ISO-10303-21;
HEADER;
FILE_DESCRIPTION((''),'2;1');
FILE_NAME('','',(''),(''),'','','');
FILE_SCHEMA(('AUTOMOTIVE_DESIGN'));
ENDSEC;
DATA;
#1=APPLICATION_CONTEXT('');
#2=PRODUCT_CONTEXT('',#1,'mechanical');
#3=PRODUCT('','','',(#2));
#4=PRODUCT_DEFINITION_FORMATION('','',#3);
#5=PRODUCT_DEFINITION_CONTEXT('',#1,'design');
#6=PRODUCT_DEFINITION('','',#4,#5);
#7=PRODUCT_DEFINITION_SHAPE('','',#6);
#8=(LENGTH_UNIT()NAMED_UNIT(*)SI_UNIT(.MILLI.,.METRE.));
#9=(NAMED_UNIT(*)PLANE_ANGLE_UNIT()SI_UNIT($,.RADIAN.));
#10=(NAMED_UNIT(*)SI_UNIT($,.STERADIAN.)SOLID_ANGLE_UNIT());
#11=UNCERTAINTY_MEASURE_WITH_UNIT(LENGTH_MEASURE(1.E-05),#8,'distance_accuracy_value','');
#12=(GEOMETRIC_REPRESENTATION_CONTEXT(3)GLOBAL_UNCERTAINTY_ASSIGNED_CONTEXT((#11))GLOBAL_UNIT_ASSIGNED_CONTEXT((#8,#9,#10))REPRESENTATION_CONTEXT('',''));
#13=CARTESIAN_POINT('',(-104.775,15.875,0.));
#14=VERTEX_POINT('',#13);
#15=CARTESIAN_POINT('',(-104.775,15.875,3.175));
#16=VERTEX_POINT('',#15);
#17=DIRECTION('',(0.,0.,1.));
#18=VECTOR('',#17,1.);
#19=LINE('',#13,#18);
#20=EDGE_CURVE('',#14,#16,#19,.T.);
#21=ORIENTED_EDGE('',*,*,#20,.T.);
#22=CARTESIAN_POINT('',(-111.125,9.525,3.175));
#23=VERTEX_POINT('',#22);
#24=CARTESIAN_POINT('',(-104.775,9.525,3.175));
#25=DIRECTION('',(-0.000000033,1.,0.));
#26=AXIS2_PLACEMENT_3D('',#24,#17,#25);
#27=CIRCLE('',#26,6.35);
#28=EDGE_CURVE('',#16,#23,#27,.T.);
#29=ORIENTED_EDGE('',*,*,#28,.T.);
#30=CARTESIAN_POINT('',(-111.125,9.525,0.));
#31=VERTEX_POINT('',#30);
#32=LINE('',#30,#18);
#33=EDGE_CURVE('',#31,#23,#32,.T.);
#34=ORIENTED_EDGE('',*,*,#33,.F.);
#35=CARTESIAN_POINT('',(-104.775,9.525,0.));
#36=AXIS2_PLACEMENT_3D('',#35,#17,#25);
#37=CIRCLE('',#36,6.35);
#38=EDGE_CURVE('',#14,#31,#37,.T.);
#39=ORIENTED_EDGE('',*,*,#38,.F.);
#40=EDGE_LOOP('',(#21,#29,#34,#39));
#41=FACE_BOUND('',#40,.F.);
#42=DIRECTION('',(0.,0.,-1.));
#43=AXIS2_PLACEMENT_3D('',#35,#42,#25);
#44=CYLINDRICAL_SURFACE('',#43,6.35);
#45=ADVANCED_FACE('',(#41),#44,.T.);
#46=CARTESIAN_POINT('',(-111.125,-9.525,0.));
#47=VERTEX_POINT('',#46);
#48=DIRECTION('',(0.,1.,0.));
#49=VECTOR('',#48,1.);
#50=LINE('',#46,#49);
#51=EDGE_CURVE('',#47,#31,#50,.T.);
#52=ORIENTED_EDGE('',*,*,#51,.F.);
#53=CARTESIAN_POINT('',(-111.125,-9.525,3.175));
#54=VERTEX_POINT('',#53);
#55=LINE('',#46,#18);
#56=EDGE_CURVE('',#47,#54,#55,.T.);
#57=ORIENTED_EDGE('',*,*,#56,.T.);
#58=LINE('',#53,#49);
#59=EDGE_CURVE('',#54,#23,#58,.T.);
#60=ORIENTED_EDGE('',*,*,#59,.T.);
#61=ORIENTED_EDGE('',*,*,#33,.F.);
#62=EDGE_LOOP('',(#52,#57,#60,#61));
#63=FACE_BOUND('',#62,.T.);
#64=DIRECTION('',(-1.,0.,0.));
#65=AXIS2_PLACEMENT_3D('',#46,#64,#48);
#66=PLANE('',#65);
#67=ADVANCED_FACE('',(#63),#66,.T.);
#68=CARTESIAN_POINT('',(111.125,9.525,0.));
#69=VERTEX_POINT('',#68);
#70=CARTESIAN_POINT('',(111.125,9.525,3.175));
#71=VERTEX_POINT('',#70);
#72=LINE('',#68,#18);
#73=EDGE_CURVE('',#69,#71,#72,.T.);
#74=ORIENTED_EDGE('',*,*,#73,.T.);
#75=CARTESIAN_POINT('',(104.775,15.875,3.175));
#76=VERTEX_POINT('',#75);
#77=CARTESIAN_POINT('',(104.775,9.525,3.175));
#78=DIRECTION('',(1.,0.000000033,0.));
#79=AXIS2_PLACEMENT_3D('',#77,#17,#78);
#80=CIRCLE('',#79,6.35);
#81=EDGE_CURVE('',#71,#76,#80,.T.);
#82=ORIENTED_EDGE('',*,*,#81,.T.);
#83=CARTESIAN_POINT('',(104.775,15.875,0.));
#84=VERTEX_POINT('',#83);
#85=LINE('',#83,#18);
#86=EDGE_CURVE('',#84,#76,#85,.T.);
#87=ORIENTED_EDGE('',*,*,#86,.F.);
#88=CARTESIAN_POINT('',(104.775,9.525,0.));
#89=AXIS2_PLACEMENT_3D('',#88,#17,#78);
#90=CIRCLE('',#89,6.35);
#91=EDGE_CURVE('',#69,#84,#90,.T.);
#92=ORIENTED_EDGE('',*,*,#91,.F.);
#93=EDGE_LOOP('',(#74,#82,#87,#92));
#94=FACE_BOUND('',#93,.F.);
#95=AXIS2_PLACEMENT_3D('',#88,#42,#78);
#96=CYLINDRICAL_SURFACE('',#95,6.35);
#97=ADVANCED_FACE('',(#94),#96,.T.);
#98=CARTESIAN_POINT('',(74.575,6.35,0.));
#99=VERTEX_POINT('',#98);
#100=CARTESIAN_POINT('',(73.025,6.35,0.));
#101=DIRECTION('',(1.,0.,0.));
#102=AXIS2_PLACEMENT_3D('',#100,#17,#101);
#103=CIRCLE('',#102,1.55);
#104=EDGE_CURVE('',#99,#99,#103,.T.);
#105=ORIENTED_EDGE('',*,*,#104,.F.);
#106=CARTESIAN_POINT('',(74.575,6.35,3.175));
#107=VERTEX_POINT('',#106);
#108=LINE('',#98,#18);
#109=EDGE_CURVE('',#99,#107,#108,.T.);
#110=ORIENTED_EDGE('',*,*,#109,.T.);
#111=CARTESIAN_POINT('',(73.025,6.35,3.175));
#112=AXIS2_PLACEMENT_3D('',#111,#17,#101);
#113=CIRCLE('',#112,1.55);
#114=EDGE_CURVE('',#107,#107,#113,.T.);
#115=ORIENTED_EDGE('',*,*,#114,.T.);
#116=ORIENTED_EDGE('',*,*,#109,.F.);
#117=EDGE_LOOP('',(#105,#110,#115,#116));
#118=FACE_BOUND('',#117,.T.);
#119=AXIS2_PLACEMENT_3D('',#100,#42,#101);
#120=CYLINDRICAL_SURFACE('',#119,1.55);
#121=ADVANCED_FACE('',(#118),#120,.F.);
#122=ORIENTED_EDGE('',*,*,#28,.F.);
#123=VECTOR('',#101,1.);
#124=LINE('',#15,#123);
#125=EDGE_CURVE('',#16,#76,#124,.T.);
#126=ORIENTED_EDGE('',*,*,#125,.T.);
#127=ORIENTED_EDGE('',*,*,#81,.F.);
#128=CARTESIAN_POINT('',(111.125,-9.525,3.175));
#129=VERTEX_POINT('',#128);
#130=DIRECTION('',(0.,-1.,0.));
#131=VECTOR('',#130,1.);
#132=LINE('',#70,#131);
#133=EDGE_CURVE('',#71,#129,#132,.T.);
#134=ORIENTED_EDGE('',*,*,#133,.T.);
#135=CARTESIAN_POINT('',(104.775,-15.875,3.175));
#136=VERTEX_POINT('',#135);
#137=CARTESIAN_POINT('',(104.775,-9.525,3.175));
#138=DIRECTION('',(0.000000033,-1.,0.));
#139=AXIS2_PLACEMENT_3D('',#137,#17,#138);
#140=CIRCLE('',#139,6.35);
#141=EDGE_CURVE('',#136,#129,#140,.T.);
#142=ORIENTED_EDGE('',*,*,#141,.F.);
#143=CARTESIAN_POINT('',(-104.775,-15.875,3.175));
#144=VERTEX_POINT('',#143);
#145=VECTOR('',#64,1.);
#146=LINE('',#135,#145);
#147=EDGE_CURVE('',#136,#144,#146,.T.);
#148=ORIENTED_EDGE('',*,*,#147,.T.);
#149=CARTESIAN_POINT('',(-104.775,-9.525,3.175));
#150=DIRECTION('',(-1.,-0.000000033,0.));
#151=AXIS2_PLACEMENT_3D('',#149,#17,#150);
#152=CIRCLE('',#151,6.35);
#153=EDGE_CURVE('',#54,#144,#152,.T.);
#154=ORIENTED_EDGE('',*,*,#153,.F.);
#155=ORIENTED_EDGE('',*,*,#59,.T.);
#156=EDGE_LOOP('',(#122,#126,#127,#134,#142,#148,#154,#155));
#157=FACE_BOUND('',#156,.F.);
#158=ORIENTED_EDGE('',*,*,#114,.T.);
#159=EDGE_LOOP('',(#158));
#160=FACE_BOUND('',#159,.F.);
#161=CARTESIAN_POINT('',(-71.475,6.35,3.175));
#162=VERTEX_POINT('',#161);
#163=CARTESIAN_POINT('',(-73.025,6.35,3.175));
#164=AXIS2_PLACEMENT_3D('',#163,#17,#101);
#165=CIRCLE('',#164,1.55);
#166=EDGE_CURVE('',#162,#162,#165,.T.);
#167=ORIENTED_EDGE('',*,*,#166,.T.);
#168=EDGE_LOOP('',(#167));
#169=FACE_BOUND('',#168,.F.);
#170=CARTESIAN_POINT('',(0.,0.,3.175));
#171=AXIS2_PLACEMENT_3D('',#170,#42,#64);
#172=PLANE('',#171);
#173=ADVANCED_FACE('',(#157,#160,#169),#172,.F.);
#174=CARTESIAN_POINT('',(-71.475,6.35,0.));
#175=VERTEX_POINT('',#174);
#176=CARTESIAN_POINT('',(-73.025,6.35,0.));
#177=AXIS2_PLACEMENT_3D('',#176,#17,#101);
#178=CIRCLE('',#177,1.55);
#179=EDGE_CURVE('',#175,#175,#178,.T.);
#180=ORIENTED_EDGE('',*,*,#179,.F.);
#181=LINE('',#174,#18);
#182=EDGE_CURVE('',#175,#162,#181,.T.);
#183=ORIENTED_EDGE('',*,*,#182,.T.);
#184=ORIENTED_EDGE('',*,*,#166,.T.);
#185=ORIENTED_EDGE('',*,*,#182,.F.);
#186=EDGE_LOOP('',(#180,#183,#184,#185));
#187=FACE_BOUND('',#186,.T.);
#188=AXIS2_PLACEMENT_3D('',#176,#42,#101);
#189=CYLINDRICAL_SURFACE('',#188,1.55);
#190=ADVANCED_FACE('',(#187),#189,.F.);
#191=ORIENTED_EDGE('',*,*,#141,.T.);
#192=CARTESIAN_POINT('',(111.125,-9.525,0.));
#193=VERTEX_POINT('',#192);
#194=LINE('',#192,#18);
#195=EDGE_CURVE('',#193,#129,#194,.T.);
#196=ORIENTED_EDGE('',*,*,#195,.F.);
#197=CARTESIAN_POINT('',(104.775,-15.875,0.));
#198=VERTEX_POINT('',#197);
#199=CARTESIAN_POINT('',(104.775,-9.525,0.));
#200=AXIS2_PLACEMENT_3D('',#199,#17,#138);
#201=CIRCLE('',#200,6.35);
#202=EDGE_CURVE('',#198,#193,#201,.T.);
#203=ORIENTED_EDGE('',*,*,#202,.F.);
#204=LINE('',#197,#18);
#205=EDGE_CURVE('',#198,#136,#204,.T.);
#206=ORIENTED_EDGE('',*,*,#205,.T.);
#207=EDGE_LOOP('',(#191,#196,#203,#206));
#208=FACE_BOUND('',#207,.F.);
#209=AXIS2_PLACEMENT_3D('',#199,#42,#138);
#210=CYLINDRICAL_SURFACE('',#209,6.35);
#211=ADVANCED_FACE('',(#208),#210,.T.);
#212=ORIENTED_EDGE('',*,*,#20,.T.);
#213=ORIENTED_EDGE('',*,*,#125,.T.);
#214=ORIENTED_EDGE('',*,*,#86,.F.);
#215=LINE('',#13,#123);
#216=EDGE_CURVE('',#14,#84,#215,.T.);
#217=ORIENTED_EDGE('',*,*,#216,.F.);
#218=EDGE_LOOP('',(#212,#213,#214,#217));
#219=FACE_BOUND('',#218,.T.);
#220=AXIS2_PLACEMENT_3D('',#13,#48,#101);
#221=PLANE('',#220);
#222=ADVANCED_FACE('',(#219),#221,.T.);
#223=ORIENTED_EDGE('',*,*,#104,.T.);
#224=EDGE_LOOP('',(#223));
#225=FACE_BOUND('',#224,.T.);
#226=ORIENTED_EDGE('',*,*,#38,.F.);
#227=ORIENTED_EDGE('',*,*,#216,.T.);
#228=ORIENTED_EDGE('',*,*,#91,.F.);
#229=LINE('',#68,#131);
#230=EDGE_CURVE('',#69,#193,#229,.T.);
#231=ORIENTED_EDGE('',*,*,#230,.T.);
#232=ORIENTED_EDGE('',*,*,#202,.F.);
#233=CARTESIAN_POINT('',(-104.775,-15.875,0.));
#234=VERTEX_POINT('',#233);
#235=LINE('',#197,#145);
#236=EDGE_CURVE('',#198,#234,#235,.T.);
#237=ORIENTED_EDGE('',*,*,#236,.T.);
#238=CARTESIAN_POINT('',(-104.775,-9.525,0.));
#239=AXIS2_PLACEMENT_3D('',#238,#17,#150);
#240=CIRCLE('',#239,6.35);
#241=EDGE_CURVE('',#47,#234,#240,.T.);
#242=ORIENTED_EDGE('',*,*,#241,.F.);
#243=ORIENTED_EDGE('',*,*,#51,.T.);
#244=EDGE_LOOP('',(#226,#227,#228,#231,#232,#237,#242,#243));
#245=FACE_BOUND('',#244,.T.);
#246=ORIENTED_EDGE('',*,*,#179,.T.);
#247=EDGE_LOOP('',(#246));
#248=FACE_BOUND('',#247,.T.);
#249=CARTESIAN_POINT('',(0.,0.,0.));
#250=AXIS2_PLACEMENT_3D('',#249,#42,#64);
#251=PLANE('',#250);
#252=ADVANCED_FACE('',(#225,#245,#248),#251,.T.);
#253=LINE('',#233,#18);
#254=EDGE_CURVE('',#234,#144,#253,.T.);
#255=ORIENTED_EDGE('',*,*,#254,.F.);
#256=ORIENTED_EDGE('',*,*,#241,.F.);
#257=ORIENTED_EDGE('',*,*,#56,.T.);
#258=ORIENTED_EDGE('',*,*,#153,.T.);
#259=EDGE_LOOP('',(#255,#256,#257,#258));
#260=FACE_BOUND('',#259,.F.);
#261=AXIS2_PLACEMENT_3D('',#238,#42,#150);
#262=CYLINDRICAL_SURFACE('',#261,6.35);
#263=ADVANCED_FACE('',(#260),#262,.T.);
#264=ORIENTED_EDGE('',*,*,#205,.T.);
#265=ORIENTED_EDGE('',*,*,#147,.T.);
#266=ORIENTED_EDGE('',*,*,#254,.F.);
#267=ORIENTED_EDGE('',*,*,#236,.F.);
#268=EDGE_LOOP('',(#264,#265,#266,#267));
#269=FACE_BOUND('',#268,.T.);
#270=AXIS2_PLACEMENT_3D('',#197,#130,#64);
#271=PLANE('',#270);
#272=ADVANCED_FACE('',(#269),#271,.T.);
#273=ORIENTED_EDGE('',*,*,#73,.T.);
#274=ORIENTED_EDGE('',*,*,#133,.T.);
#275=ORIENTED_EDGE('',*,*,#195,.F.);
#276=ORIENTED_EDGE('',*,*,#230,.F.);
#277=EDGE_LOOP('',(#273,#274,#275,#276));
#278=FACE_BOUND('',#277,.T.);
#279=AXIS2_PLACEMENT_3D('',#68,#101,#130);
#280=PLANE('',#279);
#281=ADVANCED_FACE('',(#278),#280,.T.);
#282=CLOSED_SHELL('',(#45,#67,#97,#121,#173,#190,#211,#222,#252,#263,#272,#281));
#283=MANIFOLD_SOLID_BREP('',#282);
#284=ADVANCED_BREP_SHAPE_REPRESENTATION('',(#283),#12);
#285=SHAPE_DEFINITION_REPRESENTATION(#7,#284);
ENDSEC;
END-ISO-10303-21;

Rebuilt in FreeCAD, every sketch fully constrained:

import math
import FreeCAD as App
import Part
import Sketcher

V = App.Vector
Q = App.Units.Quantity

doc = App.newDocument("Part")
body = doc.addObject("PartDesign::Body", "Body")

# Sketch on XY plane
sketch1 = body.newObject("Sketcher::SketchObject", "Sketch")
sketch1.AttachmentSupport = (doc.getObject("XY_Plane"), [""])
sketch1.MapMode = "FlatFace"
sketch1.addGeometry(Part.LineSegment(V(104.8, 15.9, 0), V(-104.8, 15.9, 0)), False)
sketch1.addGeometry(Part.ArcOfCircle(Part.Circle(V(-104.8, 9.5, 0), V(0, 0, 1), 6.4), math.radians(90), math.radians(180)), False)
sketch1.addGeometry(Part.LineSegment(V(-111.1, 9.5, 0), V(-111.1, -9.5, 0)), False)
sketch1.addGeometry(Part.ArcOfCircle(Part.Circle(V(-104.8, -9.5, 0), V(0, 0, 1), 6.4), math.radians(-180), math.radians(-90)), False)
sketch1.addGeometry(Part.LineSegment(V(-104.8, -15.9, 0), V(104.8, -15.9, 0)), False)
sketch1.addGeometry(Part.ArcOfCircle(Part.Circle(V(104.8, -9.5, 0), V(0, 0, 1), 6.4), math.radians(-90), math.radians(0)), False)
sketch1.addGeometry(Part.LineSegment(V(111.1, -9.5, 0), V(111.1, 9.5, 0)), False)
sketch1.addGeometry(Part.ArcOfCircle(Part.Circle(V(104.8, 9.5, 0), V(0, 0, 1), 6.4), math.radians(0), math.radians(90)), False)
sketch1.addGeometry(Part.Circle(V(73, 6.3, 0), V(0, 0, 1), 1.6), False)
sketch1.addGeometry(Part.Circle(V(-73, 6.3, 0), V(0, 0, 1), 1.6), False)
sketch1.addConstraint(Sketcher.Constraint("Tangent", 0, 2, 1, 1))
sketch1.addConstraint(Sketcher.Constraint("Tangent", 1, 2, 2, 1))
sketch1.addConstraint(Sketcher.Constraint("Tangent", 2, 2, 3, 1))
sketch1.addConstraint(Sketcher.Constraint("Tangent", 3, 2, 4, 1))
sketch1.addConstraint(Sketcher.Constraint("Tangent", 4, 2, 5, 1))
sketch1.addConstraint(Sketcher.Constraint("Tangent", 5, 2, 6, 1))
sketch1.addConstraint(Sketcher.Constraint("Tangent", 6, 2, 7, 1))
sketch1.addConstraint(Sketcher.Constraint("Tangent", 7, 2, 0, 1))
sketch1.addConstraint(Sketcher.Constraint("Horizontal", 0))
sketch1.addConstraint(Sketcher.Constraint("Vertical", 2))
sketch1.addConstraint(Sketcher.Constraint("Horizontal", 4))
sketch1.addConstraint(Sketcher.Constraint("Vertical", 6))
sketch1.addConstraint(Sketcher.Constraint("Equal", 1, 3))
sketch1.addConstraint(Sketcher.Constraint("Equal", 3, 5))
sketch1.addConstraint(Sketcher.Constraint("Equal", 5, 7))
sketch1.addConstraint(Sketcher.Constraint("Equal", 8, 9))
sketch1.addConstraint(Sketcher.Constraint("Symmetric", 1, 3, 5, 3, -1, 1))
sketch1.addConstraint(Sketcher.Constraint("Symmetric", 8, 3, 9, 3, -2))
sketch1.addConstraint(Sketcher.Constraint("Radius", 1, Q("0.25 in")))
sketch1.addConstraint(Sketcher.Constraint("DistanceX", 1, 3, 8, 3, Q("7 in")))
sketch1.addConstraint(Sketcher.Constraint("DistanceY", 3, 3, 0, 2, Q("1 in")))
sketch1.addConstraint(Sketcher.Constraint("DistanceX", 0, 2, 0, 1, Q("8.25 in")))
sketch1.addConstraint(Sketcher.Constraint("Diameter", 8, 3.1))
sketch1.addConstraint(Sketcher.Constraint("DistanceY", -1, 1, 8, 3, Q("0.25 in")))
pad1 = body.newObject("PartDesign::Pad", "Pad")
pad1.Profile = sketch1
pad1.Length = Q("0.125 in")

doc.recompute()
